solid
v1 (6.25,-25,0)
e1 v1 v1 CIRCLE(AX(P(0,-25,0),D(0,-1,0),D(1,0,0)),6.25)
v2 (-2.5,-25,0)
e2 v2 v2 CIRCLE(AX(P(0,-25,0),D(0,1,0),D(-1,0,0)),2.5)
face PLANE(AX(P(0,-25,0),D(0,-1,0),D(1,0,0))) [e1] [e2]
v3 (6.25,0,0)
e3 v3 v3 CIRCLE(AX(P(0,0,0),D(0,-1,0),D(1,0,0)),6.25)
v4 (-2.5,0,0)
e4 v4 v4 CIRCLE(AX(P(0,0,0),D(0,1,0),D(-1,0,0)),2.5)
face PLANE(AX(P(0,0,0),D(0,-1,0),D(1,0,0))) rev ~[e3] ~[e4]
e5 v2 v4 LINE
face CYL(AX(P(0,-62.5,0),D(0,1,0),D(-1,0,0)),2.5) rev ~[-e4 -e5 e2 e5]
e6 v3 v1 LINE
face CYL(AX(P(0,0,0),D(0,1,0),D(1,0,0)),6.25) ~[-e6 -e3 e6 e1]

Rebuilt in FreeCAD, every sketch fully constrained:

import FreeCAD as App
import Part
import Sketcher
from FreeCAD import Vector

doc = App.newDocument("Part")
body = doc.addObject("PartDesign::Body", "Body")

# Sketch on XZ plane
sketch1 = body.newObject("Sketcher::SketchObject", "Sketch")
sketch1.AttachmentSupport = (doc.getObject("XZ_Plane"), [""])
sketch1.MapMode = "FlatFace"
sketch1.addGeometry(Part.Circle(Vector(0, 0, 0), Vector(0, 0, 1), 6), False)
sketch1.addConstraint([
    Sketcher.Constraint("Coincident", 0, 3, -1, 1),
    Sketcher.Constraint("Diameter", 0, 12.5),
])
pad1 = body.newObject("PartDesign::Pad", "Pad")
pad1.Profile = sketch1
pad1.Length = 25

# Sketch on XZ plane
sketch2 = body.newObject("Sketcher::SketchObject", "Sketch001")
sketch2.AttachmentSupport = (doc.getObject("XZ_Plane"), [""])
sketch2.MapMode = "FlatFace"
sketch2.AttachmentOffset = App.Placement(Vector(0, 0, 25), App.Rotation())
sketch2.addGeometry(Part.Circle(Vector(0, 0, 0), Vector(0, 0, 1), 2.5), False)
sketch2.addConstraint([
    Sketcher.Constraint("Coincident", 0, 3, -1, 1),
    Sketcher.Constraint("Diameter", 0, 5.0),
])
doc.recompute()
hole = body.newObject("PartDesign::Hole", "Hole")
hole.Profile = sketch2
hole.ThreadType = "None"
hole.Diameter = 5
hole.DepthType = "Dimension"
hole.Depth = 37.5
hole.DrillPoint = "Flat"

doc.recompute()
